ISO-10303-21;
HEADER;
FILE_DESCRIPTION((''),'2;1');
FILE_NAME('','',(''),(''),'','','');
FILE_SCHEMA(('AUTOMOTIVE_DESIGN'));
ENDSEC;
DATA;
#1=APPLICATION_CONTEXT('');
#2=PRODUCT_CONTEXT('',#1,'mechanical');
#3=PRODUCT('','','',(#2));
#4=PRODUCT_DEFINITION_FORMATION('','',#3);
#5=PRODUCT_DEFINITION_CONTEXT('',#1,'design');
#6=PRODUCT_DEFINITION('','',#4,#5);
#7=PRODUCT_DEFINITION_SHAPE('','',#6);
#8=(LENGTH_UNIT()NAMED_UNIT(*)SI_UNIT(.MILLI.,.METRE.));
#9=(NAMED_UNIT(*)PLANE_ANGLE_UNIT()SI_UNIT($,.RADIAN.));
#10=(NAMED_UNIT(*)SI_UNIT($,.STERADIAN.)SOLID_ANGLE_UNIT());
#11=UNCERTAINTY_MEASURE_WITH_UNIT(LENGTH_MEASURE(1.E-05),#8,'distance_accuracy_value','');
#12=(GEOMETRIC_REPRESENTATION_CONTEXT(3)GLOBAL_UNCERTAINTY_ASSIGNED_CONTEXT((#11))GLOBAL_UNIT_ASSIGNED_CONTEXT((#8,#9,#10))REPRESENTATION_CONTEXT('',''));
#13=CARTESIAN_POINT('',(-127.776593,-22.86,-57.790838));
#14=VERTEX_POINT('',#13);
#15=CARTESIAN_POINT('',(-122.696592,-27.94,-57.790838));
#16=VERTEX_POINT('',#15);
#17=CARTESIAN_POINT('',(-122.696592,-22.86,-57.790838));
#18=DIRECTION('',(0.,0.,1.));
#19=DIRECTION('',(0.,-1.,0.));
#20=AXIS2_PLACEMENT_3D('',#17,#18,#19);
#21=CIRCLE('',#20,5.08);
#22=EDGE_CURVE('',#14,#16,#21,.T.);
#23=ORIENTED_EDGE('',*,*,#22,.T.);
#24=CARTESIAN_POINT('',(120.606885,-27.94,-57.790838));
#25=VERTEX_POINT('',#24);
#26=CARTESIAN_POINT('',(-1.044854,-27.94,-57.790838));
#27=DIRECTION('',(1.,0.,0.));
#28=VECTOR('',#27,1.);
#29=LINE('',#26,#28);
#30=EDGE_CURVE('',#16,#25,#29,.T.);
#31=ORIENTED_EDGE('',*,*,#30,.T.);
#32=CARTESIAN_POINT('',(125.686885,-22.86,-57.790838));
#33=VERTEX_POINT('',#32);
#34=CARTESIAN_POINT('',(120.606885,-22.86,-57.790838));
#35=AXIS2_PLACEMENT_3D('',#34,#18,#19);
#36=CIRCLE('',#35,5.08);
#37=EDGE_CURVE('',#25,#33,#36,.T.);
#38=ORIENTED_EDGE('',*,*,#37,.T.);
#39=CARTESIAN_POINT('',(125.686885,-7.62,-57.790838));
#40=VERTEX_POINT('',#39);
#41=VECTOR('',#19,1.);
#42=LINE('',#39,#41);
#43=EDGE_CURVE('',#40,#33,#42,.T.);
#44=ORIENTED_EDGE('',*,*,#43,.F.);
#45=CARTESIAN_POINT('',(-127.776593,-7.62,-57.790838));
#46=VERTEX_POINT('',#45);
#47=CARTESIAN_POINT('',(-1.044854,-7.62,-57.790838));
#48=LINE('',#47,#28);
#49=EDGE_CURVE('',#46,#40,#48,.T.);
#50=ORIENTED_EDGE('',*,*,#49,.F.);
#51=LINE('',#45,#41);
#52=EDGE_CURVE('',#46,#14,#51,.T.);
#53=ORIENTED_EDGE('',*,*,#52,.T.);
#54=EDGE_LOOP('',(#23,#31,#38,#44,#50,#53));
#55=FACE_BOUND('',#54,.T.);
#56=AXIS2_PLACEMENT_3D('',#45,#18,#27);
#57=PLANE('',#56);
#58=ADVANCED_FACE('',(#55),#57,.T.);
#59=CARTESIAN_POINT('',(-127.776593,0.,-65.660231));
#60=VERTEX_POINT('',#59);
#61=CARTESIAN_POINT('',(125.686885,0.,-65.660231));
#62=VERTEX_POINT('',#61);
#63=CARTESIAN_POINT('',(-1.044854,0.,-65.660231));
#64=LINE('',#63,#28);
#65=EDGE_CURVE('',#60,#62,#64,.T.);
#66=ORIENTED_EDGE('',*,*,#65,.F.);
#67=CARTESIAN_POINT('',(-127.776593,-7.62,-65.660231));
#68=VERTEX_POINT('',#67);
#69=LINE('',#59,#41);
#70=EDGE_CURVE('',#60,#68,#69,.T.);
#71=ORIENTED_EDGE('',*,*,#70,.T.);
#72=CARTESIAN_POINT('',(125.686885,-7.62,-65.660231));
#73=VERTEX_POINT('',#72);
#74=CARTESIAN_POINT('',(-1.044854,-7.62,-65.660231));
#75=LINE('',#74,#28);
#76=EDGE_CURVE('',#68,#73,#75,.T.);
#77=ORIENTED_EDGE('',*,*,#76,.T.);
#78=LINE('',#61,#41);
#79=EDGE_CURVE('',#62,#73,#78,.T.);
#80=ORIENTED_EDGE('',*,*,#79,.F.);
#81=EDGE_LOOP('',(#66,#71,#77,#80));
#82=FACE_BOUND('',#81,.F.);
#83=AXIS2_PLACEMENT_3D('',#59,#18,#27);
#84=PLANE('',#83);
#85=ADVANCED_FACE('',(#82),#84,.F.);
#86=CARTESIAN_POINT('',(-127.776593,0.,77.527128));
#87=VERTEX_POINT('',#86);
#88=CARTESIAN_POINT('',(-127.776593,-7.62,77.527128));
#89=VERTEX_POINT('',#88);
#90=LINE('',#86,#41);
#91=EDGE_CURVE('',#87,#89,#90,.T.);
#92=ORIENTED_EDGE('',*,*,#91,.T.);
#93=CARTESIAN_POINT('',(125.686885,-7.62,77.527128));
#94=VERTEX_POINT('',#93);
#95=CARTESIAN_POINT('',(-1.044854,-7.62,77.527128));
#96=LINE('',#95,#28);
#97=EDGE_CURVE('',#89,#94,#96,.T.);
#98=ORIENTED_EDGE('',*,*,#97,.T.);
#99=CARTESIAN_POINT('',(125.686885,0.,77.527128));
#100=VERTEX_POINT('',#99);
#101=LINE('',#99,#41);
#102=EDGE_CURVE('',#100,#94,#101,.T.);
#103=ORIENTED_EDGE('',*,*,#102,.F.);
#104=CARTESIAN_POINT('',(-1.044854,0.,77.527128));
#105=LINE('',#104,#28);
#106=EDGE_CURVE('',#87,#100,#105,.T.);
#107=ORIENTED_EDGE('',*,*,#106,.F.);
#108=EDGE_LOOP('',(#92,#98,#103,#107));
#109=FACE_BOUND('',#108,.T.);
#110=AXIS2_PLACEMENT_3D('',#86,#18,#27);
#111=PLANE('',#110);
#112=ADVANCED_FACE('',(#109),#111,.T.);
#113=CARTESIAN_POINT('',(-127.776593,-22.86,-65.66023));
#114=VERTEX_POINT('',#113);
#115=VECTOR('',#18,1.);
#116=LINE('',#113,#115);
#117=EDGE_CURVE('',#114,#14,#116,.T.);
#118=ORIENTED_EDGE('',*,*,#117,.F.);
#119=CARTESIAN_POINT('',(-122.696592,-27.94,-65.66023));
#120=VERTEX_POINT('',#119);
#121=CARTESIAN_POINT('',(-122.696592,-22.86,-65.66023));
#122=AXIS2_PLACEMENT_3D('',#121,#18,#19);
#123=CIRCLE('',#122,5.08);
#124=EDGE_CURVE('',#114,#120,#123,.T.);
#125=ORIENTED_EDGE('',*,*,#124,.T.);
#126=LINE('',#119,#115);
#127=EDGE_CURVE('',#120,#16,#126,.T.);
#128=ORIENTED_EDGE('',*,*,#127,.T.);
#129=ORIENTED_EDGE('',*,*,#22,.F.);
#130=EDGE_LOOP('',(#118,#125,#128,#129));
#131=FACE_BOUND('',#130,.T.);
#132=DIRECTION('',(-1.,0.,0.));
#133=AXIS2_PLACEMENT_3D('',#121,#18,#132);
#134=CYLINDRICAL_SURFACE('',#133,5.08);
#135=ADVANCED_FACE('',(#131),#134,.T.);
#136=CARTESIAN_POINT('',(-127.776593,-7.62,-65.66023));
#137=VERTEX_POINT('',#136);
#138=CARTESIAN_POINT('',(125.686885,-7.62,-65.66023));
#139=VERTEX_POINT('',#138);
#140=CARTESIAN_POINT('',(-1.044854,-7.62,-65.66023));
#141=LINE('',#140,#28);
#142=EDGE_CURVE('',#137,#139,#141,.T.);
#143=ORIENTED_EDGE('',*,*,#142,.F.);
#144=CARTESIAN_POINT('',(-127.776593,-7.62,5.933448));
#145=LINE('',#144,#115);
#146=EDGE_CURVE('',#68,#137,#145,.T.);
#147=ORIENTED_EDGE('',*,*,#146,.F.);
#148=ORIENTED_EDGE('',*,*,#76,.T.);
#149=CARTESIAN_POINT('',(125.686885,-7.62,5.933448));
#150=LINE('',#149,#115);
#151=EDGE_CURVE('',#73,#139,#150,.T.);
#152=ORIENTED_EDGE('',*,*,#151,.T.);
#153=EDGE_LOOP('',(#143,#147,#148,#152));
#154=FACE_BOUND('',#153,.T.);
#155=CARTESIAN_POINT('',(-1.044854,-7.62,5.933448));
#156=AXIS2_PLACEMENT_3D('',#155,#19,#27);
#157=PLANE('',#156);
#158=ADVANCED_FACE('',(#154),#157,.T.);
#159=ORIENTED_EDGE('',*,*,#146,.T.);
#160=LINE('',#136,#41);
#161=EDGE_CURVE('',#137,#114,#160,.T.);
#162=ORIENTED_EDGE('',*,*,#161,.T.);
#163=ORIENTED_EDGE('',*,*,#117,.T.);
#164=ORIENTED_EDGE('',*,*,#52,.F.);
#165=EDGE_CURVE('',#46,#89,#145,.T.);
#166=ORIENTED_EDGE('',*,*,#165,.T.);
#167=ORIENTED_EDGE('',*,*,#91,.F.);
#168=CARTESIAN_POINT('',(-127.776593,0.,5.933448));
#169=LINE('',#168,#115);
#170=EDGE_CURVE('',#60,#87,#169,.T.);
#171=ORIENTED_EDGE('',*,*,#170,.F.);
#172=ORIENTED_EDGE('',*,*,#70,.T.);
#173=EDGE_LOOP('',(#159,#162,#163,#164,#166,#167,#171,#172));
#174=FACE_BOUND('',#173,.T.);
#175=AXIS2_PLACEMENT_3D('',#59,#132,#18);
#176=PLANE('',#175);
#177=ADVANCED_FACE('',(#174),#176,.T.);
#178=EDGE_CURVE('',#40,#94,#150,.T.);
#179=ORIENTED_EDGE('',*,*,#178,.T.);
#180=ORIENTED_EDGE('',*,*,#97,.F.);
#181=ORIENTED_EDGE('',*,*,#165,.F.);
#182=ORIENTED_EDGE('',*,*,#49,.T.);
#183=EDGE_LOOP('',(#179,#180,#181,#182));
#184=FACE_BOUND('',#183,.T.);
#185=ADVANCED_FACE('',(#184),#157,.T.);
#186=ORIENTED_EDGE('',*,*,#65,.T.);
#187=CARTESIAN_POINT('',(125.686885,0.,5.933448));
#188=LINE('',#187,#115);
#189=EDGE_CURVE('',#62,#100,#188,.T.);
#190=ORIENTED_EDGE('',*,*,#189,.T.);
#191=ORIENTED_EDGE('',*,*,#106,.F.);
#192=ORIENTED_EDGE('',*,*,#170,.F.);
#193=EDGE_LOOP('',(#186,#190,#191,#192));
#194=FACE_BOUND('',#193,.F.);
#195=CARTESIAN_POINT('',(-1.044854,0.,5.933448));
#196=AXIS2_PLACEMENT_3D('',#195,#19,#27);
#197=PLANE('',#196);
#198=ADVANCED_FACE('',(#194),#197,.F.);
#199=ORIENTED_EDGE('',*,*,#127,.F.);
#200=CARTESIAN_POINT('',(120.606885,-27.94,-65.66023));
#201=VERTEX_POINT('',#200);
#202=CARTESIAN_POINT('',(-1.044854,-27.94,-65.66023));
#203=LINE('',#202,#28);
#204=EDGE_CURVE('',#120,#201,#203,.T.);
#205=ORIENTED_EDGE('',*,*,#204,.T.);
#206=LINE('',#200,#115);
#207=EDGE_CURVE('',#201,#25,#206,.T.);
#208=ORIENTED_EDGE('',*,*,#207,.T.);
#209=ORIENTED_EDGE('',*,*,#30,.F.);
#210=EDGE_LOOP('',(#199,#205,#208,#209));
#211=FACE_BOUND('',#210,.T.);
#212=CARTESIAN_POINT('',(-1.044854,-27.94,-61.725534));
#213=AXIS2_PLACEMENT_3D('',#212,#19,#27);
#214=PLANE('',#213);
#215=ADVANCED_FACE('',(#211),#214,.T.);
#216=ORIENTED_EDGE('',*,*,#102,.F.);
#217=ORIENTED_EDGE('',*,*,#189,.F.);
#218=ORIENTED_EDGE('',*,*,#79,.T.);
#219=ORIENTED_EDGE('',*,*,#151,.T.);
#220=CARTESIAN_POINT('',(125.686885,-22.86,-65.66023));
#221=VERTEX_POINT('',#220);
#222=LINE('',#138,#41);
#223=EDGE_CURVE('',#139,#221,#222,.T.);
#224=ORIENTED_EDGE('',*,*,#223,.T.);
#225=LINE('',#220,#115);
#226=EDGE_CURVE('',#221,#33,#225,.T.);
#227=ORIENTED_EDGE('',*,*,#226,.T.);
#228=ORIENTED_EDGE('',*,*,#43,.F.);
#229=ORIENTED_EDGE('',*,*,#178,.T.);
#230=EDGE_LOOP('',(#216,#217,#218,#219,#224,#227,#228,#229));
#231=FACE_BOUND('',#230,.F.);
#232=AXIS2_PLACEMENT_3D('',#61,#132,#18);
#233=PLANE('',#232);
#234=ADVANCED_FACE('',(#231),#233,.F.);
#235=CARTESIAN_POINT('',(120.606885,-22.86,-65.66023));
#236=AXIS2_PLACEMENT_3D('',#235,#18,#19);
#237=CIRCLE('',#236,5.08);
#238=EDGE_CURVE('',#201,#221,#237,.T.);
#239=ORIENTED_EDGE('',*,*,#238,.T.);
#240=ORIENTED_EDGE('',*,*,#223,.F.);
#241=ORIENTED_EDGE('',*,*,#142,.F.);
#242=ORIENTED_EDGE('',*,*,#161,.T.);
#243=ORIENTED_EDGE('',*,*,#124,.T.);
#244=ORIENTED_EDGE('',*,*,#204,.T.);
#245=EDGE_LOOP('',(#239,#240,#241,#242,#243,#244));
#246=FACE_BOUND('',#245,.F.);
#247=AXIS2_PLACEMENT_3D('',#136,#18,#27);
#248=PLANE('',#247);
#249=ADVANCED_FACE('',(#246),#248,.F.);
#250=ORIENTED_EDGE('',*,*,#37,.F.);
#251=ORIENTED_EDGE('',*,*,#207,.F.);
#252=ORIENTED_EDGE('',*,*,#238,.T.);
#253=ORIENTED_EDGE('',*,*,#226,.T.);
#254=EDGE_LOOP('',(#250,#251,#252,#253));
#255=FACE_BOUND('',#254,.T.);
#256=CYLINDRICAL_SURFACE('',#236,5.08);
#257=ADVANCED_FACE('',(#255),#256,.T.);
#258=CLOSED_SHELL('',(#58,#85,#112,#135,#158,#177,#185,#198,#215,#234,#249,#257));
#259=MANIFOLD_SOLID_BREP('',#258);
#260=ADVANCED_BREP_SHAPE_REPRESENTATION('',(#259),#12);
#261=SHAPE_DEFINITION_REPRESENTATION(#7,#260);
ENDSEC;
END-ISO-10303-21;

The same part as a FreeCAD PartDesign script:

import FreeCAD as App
import Part
import Sketcher
from FreeCAD import Vector
Q = App.Units.Quantity


def edges_at(feature, points):
    """Names of the edges that pass closest to the given points."""
    edges = feature.Shape.Edges
    near = lambda p: min(range(len(edges)), key=lambda i: edges[i].distToShape(Part.Vertex(*p))[0])
    return sorted({f"Edge{near(p) + 1}" for p in points})


def add_polygon(sketch, points):
    """Adds a closed chain of lines whose ends are joined by coincident constraints."""
    first, n = sketch.GeometryCount, len(points)
    for a, b in zip(points, points[1:] + points[:1]):
        sketch.addGeometry(Part.LineSegment(App.Vector(*a, 0), App.Vector(*b, 0)), False)
    for i in range(n):
        sketch.addConstraint(Sketcher.Constraint("Coincident", first + i, 2, first + (i + 1) % n, 1))

doc = App.newDocument("Part")
body = doc.addObject("PartDesign::Body", "Body")

# Sketch on XZ plane
sketch1 = doc.addObject("Sketcher::SketchObject", "Sketch")
body.addObject(sketch1)
sketch1.AttachmentSupport = (doc.XZ_Plane, [""])
sketch1.MapMode = "FlatFace"
add_polygon(sketch1, [(-128, 78), (-128, -66), (126, -66), (126, 78)])  # lines 0-3
sketch1.addConstraint(Sketcher.Constraint("Vertical", 0))
sketch1.addConstraint(Sketcher.Constraint("Horizontal", 1))
sketch1.addConstraint(Sketcher.Constraint("Vertical", 2))
sketch1.addConstraint(Sketcher.Constraint("Horizontal", 3))
sketch1.addConstraint(Sketcher.Constraint("DistanceY", 0, 2, 0, 1, 143.187359))
sketch1.addConstraint(Sketcher.Constraint("DistanceX", 1, 1, 1, 2, 253.463477))
sketch1.addConstraint(Sketcher.Constraint("DistanceY", 0, 2, -1, 1, 65.660231))
sketch1.addConstraint(Sketcher.Constraint("DistanceX", 0, 2, -1, 1, 127.776593))
pad1 = doc.addObject("PartDesign::Pad", "Pad")
body.addObject(pad1)
pad1.Profile = sketch1
pad1.Length = Q("0.3 in")

# Sketch on XZ plane
sketch2 = doc.addObject("Sketcher::SketchObject", "Sketch001")
body.addObject(sketch2)
sketch2.AttachmentSupport = (doc.XZ_Plane, [""])
sketch2.MapMode = "FlatFace"
sketch2.AttachmentOffset = App.Placement(Vector(0, 0, 0.3 * 25.4), App.Rotation())
add_polygon(sketch2, [(-128, -58), (-128, -66), (126, -66), (126, -58)])  # lines 0-3
sketch2.addConstraint(Sketcher.Constraint("Vertical", 0))
sketch2.addConstraint(Sketcher.Constraint("Horizontal", 1))
sketch2.addConstraint(Sketcher.Constraint("Vertical", 2))
sketch2.addConstraint(Sketcher.Constraint("Horizontal", 3))
sketch2.addConstraint(Sketcher.Constraint("DistanceX", 1, 1, 1, 2, 253.463477))
sketch2.addConstraint(Sketcher.Constraint("DistanceY", 0, 2, 0, 1, 7.869393))
sketch2.addConstraint(Sketcher.Constraint("DistanceY", 0, 2, -1, 1, 65.66023))
sketch2.addConstraint(Sketcher.Constraint("DistanceX", 0, 2, -1, 1, 127.776593))
pad2 = doc.addObject("PartDesign::Pad", "Pad001")
body.addObject(pad2)
pad2.Profile = sketch2
pad2.Length = Q("0.8 in")
doc.recompute()

fillet = doc.addObject("PartDesign::Fillet", "Fillet")
body.addObject(fillet)
fillet.Base = (pad2, edges_at(pad2, [(-127.777, -27.94, -61.726)]))
fillet.Radius = Q("0.2 in")
doc.recompute()

fillet2 = doc.addObject("PartDesign::Fillet", "Fillet001")
body.addObject(fillet2)
fillet2.Base = (fillet, edges_at(fillet, [(125.687, -27.94, -61.726)]))
fillet2.Radius = Q("0.2 in")

doc.recompute()
